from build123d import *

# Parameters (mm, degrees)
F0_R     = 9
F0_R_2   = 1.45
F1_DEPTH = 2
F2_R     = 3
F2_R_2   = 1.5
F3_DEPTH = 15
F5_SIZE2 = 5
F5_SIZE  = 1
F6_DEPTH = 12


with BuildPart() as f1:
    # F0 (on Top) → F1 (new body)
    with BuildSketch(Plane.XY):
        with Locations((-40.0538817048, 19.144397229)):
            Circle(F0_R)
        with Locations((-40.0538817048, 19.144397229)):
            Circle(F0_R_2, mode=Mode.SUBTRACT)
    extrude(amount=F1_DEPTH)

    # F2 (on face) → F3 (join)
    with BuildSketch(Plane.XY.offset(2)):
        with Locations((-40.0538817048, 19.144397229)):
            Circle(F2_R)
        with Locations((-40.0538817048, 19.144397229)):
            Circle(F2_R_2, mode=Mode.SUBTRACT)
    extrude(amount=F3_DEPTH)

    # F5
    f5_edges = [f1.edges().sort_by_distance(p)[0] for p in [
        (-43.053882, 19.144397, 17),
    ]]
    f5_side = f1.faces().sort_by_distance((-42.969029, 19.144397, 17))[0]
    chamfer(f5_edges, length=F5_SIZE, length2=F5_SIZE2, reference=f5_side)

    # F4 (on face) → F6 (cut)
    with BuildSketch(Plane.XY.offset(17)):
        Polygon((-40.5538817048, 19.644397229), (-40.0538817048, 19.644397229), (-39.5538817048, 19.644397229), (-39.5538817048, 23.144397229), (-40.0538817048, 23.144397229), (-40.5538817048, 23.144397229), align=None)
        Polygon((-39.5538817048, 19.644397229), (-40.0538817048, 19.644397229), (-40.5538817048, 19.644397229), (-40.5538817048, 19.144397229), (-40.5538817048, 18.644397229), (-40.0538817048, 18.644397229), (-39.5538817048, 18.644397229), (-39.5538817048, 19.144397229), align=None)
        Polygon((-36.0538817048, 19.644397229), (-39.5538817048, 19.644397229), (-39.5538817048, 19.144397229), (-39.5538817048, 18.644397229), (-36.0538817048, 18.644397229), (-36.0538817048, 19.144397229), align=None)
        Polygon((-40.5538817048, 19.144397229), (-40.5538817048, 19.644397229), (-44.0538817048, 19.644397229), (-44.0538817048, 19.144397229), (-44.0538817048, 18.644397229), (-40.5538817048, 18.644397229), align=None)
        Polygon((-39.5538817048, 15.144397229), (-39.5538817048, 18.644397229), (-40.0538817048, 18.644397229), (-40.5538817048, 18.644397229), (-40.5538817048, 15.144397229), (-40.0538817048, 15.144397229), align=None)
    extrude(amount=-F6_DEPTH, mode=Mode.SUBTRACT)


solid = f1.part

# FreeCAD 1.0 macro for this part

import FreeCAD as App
import Part
import Sketcher
Q = App.Units.Quantity


def edges_at(feature, points):
    """Names of the edges that pass closest to the given points."""
    edges = feature.Shape.Edges
    near = lambda p: min(range(len(edges)), key=lambda i: edges[i].distToShape(Part.Vertex(*p))[0])
    return sorted({f"Edge{near(p) + 1}" for p in points})


def add_polygon(sketch, points):
    """Adds a closed chain of lines whose ends are joined by coincident constraints."""
    first, n = sketch.GeometryCount, len(points)
    for a, b in zip(points, points[1:] + points[:1]):
        sketch.addGeometry(Part.LineSegment(App.Vector(*a, 0), App.Vector(*b, 0)), False)
    for i in range(n):
        sketch.addConstraint(Sketcher.Constraint("Coincident", first + i, 2, first + (i + 1) % n, 1))

doc = App.newDocument("Part")
params = doc.addObject("Spreadsheet::Sheet", "Params")
for row, (alias, value) in enumerate([
    ("sketch1_diameter", "18 mm"),
    ("sketch1_diameter2", "2.9 mm"),
    ("pad1_length", "2 mm"),
    ("sketch2_diameter", "6 mm"),
    ("sketch2_diameter2", "3 mm"),
    ("pad2_length", "15 mm"),
    ("chamfer_size", "1 mm"),
    ("chamfer_size2", "5 mm"),
    ("sketch3_width", "1 mm"),
    ("sketch3_width2", "3.5 mm"),
    ("pocket1_length", "12 mm"),
], start=1):
    params.set(f"A{row}", alias)
    params.set(f"B{row}", "=" + value)
    params.setAlias(f"B{row}", alias)

body = doc.addObject("PartDesign::Body", "Body")

# Sketch on XY plane
sketch1 = body.newObject("Sketcher::SketchObject", "Sketch")
sketch1.AttachmentSupport = (doc.getObject("XY_Plane"), [""])
sketch1.MapMode = "FlatFace"
sketch1.addGeometry(Part.Circle(App.Vector(-40.1, 19.1, 0), App.Vector(0, 0, 1), 9), False)
sketch1.addGeometry(Part.Circle(App.Vector(-40.1, 19.1, 0), App.Vector(0, 0, 1), 1.4), False)
sketch1.addConstraint(Sketcher.Constraint("Coincident", 1, 3, 0, 3))
sketch1.addConstraint(Sketcher.Constraint("Diameter", 0, Q("18 mm")))
sketch1.addConstraint(Sketcher.Constraint("Diameter", 1, Q("2.9 mm")))
sketch1.addConstraint(Sketcher.Constraint("DistanceX", 0, 3, -1, 1, Q("40.053882 mm")))
sketch1.addConstraint(Sketcher.Constraint("DistanceY", -1, 1, 0, 3, Q("19.144397 mm")))
sketch1.setExpression("Constraints[1]", "Params.sketch1_diameter")
sketch1.setExpression("Constraints[2]", "Params.sketch1_diameter2")
pad1 = body.newObject("PartDesign::Pad", "Pad")
pad1.Profile = sketch1
pad1.setExpression("Length", "Params.pad1_length")

# Sketch on XY plane
sketch2 = body.newObject("Sketcher::SketchObject", "Sketch001")
sketch2.AttachmentSupport = (doc.getObject("XY_Plane"), [""])
sketch2.MapMode = "FlatFace"
sketch2.AttachmentOffset = App.Placement(App.Vector(0, 0, 2), App.Rotation())
sketch2.addGeometry(Part.Circle(App.Vector(-40.1, 19.1, 0), App.Vector(0, 0, 1), 3), False)
sketch2.addGeometry(Part.Circle(App.Vector(-40.1, 19.1, 0), App.Vector(0, 0, 1), 1.5), False)
sketch2.addConstraint(Sketcher.Constraint("Coincident", 1, 3, 0, 3))
sketch2.addConstraint(Sketcher.Constraint("Diameter", 0, Q("6 mm")))
sketch2.addConstraint(Sketcher.Constraint("Diameter", 1, Q("3 mm")))
sketch2.addConstraint(Sketcher.Constraint("DistanceX", 0, 3, -1, 1, Q("40.053882 mm")))
sketch2.addConstraint(Sketcher.Constraint("DistanceY", -1, 1, 0, 3, Q("19.144397 mm")))
sketch2.setExpression("Constraints[1]", "Params.sketch2_diameter")
sketch2.setExpression("Constraints[2]", "Params.sketch2_diameter2")
pad2 = body.newObject("PartDesign::Pad", "Pad001")
pad2.Profile = sketch2
pad2.setExpression("Length", "Params.pad2_length")
doc.recompute()

chamfer = body.newObject("PartDesign::Chamfer", "Chamfer")
chamfer.Base = (pad2, edges_at(pad2, [(-43.054, 19.144, 17)]))
chamfer.ChamferType = "Two distances"
chamfer.setExpression("Size", "Params.chamfer_size")
chamfer.setExpression("Size2", "Params.chamfer_size2")
chamfer.FlipDirection = True

# Sketch on XY plane
sketch3 = body.newObject("Sketcher::SketchObject", "Sketch002")
sketch3.AttachmentSupport = (doc.getObject("XY_Plane"), [""])
sketch3.MapMode = "FlatFace"
sketch3.AttachmentOffset = App.Placement(App.Vector(0, 0, 17), App.Rotation())
add_polygon(sketch3, [(-39.6, 23.1), (-40.6, 23.1), (-40.6, 19.6), (-44.1, 19.6), (-44.1, 18.6), (-40.6, 18.6), (-40.6, 15.1), (-39.6, 15.1), (-39.6, 18.6), (-36.1, 18.6), (-36.1, 19.6), (-39.6, 19.6)])  # lines 0-11
sketch3.addConstraint(Sketcher.Constraint("Horizontal", 0))
sketch3.addConstraint(Sketcher.Constraint("Vertical", 1))
sketch3.addConstraint(Sketcher.Constraint("Horizontal", 2))
sketch3.addConstraint(Sketcher.Constraint("Vertical", 3))
sketch3.addConstraint(Sketcher.Constraint("Horizontal", 4))
sketch3.addConstraint(Sketcher.Constraint("Vertical", 5))
sketch3.addConstraint(Sketcher.Constraint("Horizontal", 6))
sketch3.addConstraint(Sketcher.Constraint("Vertical", 7))
sketch3.addConstraint(Sketcher.Constraint("Horizontal", 8))
sketch3.addConstraint(Sketcher.Constraint("Vertical", 9))
sketch3.addConstraint(Sketcher.Constraint("Horizontal", 10))
sketch3.addConstraint(Sketcher.Constraint("Vertical", 11))
sketch3.addConstraint(Sketcher.Constraint("Horizontal", 4, 2, 7, 2))
sketch3.addConstraint(Sketcher.Constraint("Horizontal", 2, 2, 9, 2))
sketch3.addConstraint(Sketcher.Constraint("Vertical", 1, 2, 4, 2))
sketch3.addConstraint(Sketcher.Constraint("Vertical", 7, 2, 10, 2))
sketch3.addConstraint(Sketcher.Constraint("Equal", 4, 8))
sketch3.addConstraint(Sketcher.Constraint("Equal", 10, 1))
sketch3.addConstraint(Sketcher.Constraint("Equal", 6, 3))
sketch3.addConstraint(Sketcher.Constraint("Equal", 1, 5))
sketch3.addConstraint(Sketcher.Constraint("DistanceX", 0, 2, 0, 1, Q("1 mm")))
sketch3.addConstraint(Sketcher.Constraint("DistanceX", 2, 2, 2, 1, Q("3.5 mm")))
sketch3.addConstraint(Sketcher.Constraint("DistanceX", 0, 2, -1, 1, Q("40.553882 mm")))
sketch3.addConstraint(Sketcher.Constraint("DistanceY", -1, 1, 0, 2, Q("23.144397 mm")))
sketch3.setExpression("Constraints[32]", "Params.sketch3_width")
sketch3.setExpression("Constraints[33]", "Params.sketch3_width2")
pocket1 = body.newObject("PartDesign::Pocket", "Pocket")
pocket1.Profile = sketch3
pocket1.setExpression("Length", "Params.pocket1_length")

doc.recompute()
